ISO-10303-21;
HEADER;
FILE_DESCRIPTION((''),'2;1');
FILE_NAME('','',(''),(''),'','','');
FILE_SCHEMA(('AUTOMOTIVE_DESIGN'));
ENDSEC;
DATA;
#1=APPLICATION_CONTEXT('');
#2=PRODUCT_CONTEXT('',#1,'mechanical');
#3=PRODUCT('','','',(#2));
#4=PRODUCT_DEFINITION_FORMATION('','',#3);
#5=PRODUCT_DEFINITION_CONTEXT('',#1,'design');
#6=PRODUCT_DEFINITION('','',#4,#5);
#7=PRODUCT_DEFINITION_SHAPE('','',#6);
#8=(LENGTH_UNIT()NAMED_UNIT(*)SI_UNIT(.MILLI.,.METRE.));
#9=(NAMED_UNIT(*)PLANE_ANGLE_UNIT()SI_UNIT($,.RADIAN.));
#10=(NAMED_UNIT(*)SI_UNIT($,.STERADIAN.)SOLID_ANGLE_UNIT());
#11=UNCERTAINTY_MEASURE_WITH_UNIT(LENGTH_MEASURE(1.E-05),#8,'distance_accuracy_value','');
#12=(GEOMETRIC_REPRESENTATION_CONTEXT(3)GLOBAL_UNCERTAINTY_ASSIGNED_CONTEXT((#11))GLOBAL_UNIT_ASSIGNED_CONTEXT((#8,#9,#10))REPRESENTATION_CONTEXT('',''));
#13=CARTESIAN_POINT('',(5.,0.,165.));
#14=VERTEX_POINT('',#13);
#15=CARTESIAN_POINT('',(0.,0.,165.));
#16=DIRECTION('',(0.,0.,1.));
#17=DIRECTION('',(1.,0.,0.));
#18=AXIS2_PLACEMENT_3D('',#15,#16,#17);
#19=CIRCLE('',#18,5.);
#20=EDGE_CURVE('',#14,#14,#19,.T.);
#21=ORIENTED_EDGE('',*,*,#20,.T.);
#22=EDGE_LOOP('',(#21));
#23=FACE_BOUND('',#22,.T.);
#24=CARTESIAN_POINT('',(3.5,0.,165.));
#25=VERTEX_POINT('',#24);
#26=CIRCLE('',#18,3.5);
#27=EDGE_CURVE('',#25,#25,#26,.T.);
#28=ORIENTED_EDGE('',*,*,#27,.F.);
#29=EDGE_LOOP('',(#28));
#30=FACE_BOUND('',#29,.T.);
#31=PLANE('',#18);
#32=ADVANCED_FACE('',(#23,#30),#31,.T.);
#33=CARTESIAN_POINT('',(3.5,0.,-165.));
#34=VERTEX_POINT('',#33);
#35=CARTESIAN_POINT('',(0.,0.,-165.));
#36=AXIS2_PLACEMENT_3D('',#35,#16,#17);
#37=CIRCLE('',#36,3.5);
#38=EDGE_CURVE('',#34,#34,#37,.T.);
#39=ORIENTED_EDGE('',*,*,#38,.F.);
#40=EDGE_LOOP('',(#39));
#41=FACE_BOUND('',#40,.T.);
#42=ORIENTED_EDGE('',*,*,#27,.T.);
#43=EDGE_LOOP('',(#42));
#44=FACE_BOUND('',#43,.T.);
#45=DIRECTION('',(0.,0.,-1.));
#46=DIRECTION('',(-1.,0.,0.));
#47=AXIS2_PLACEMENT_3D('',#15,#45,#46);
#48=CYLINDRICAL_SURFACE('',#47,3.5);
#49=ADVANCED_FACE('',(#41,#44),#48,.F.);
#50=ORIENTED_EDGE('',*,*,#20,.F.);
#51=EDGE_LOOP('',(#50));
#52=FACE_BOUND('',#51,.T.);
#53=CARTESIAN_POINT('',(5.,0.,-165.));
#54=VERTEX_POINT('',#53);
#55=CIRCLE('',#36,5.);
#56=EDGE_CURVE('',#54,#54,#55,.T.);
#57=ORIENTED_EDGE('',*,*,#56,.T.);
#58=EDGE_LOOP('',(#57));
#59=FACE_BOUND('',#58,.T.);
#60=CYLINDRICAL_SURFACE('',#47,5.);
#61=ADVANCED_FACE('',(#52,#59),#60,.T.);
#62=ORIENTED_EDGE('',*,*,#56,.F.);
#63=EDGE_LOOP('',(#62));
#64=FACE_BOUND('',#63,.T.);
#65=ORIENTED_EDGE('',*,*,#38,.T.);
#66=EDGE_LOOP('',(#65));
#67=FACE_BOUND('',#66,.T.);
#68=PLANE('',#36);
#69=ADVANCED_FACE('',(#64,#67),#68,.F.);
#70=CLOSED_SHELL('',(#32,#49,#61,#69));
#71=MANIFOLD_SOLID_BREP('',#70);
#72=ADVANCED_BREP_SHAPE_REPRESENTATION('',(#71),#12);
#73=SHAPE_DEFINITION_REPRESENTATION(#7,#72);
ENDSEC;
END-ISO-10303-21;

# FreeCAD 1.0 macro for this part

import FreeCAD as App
import Part
import Sketcher
from FreeCAD import Vector
Q = App.Units.Quantity

doc = App.newDocument("Part")
params = doc.addObject("Spreadsheet::Sheet", "Params")
for row, (alias, value) in enumerate([
    ("sketch1_diameter", "10 mm"),
    ("sketch1_diameter2", "7 mm"),
    ("pad1_length", "330 mm"),
], start=1):
    params.set(f"A{row}", alias)
    params.set(f"B{row}", "=" + value)
    params.setAlias(f"B{row}", alias)

body = doc.addObject("PartDesign::Body", "Body")

# Sketch on XY plane
sketch1 = body.newObject("Sketcher::SketchObject", "Sketch")
sketch1.AttachmentSupport = (doc.getObject("XY_Plane"), [""])
sketch1.MapMode = "FlatFace"
sketch1.addGeometry([
    Part.Circle(Vector(0, 0, 0), Vector(0, 0, 1), 5),
    Part.Circle(Vector(0, 0, 0), Vector(0, 0, 1), 3.5),
], False)
sketch1.addConstraint([
    Sketcher.Constraint("Coincident", 0, 3, -1, 1),
    Sketcher.Constraint("Coincident", 1, 3, -1, 1),
    Sketcher.Constraint("Diameter", 0, Q("10 mm")),
    Sketcher.Constraint("Diameter", 1, Q("7 mm")),
])
sketch1.setExpression("Constraints[2]", "Params.sketch1_diameter")
sketch1.setExpression("Constraints[3]", "Params.sketch1_diameter2")
pad1 = body.newObject("PartDesign::Pad", "Pad")
pad1.Profile = sketch1
pad1.setExpression("Length", "Params.pad1_length")
pad1.Midplane = True

doc.recompute()
